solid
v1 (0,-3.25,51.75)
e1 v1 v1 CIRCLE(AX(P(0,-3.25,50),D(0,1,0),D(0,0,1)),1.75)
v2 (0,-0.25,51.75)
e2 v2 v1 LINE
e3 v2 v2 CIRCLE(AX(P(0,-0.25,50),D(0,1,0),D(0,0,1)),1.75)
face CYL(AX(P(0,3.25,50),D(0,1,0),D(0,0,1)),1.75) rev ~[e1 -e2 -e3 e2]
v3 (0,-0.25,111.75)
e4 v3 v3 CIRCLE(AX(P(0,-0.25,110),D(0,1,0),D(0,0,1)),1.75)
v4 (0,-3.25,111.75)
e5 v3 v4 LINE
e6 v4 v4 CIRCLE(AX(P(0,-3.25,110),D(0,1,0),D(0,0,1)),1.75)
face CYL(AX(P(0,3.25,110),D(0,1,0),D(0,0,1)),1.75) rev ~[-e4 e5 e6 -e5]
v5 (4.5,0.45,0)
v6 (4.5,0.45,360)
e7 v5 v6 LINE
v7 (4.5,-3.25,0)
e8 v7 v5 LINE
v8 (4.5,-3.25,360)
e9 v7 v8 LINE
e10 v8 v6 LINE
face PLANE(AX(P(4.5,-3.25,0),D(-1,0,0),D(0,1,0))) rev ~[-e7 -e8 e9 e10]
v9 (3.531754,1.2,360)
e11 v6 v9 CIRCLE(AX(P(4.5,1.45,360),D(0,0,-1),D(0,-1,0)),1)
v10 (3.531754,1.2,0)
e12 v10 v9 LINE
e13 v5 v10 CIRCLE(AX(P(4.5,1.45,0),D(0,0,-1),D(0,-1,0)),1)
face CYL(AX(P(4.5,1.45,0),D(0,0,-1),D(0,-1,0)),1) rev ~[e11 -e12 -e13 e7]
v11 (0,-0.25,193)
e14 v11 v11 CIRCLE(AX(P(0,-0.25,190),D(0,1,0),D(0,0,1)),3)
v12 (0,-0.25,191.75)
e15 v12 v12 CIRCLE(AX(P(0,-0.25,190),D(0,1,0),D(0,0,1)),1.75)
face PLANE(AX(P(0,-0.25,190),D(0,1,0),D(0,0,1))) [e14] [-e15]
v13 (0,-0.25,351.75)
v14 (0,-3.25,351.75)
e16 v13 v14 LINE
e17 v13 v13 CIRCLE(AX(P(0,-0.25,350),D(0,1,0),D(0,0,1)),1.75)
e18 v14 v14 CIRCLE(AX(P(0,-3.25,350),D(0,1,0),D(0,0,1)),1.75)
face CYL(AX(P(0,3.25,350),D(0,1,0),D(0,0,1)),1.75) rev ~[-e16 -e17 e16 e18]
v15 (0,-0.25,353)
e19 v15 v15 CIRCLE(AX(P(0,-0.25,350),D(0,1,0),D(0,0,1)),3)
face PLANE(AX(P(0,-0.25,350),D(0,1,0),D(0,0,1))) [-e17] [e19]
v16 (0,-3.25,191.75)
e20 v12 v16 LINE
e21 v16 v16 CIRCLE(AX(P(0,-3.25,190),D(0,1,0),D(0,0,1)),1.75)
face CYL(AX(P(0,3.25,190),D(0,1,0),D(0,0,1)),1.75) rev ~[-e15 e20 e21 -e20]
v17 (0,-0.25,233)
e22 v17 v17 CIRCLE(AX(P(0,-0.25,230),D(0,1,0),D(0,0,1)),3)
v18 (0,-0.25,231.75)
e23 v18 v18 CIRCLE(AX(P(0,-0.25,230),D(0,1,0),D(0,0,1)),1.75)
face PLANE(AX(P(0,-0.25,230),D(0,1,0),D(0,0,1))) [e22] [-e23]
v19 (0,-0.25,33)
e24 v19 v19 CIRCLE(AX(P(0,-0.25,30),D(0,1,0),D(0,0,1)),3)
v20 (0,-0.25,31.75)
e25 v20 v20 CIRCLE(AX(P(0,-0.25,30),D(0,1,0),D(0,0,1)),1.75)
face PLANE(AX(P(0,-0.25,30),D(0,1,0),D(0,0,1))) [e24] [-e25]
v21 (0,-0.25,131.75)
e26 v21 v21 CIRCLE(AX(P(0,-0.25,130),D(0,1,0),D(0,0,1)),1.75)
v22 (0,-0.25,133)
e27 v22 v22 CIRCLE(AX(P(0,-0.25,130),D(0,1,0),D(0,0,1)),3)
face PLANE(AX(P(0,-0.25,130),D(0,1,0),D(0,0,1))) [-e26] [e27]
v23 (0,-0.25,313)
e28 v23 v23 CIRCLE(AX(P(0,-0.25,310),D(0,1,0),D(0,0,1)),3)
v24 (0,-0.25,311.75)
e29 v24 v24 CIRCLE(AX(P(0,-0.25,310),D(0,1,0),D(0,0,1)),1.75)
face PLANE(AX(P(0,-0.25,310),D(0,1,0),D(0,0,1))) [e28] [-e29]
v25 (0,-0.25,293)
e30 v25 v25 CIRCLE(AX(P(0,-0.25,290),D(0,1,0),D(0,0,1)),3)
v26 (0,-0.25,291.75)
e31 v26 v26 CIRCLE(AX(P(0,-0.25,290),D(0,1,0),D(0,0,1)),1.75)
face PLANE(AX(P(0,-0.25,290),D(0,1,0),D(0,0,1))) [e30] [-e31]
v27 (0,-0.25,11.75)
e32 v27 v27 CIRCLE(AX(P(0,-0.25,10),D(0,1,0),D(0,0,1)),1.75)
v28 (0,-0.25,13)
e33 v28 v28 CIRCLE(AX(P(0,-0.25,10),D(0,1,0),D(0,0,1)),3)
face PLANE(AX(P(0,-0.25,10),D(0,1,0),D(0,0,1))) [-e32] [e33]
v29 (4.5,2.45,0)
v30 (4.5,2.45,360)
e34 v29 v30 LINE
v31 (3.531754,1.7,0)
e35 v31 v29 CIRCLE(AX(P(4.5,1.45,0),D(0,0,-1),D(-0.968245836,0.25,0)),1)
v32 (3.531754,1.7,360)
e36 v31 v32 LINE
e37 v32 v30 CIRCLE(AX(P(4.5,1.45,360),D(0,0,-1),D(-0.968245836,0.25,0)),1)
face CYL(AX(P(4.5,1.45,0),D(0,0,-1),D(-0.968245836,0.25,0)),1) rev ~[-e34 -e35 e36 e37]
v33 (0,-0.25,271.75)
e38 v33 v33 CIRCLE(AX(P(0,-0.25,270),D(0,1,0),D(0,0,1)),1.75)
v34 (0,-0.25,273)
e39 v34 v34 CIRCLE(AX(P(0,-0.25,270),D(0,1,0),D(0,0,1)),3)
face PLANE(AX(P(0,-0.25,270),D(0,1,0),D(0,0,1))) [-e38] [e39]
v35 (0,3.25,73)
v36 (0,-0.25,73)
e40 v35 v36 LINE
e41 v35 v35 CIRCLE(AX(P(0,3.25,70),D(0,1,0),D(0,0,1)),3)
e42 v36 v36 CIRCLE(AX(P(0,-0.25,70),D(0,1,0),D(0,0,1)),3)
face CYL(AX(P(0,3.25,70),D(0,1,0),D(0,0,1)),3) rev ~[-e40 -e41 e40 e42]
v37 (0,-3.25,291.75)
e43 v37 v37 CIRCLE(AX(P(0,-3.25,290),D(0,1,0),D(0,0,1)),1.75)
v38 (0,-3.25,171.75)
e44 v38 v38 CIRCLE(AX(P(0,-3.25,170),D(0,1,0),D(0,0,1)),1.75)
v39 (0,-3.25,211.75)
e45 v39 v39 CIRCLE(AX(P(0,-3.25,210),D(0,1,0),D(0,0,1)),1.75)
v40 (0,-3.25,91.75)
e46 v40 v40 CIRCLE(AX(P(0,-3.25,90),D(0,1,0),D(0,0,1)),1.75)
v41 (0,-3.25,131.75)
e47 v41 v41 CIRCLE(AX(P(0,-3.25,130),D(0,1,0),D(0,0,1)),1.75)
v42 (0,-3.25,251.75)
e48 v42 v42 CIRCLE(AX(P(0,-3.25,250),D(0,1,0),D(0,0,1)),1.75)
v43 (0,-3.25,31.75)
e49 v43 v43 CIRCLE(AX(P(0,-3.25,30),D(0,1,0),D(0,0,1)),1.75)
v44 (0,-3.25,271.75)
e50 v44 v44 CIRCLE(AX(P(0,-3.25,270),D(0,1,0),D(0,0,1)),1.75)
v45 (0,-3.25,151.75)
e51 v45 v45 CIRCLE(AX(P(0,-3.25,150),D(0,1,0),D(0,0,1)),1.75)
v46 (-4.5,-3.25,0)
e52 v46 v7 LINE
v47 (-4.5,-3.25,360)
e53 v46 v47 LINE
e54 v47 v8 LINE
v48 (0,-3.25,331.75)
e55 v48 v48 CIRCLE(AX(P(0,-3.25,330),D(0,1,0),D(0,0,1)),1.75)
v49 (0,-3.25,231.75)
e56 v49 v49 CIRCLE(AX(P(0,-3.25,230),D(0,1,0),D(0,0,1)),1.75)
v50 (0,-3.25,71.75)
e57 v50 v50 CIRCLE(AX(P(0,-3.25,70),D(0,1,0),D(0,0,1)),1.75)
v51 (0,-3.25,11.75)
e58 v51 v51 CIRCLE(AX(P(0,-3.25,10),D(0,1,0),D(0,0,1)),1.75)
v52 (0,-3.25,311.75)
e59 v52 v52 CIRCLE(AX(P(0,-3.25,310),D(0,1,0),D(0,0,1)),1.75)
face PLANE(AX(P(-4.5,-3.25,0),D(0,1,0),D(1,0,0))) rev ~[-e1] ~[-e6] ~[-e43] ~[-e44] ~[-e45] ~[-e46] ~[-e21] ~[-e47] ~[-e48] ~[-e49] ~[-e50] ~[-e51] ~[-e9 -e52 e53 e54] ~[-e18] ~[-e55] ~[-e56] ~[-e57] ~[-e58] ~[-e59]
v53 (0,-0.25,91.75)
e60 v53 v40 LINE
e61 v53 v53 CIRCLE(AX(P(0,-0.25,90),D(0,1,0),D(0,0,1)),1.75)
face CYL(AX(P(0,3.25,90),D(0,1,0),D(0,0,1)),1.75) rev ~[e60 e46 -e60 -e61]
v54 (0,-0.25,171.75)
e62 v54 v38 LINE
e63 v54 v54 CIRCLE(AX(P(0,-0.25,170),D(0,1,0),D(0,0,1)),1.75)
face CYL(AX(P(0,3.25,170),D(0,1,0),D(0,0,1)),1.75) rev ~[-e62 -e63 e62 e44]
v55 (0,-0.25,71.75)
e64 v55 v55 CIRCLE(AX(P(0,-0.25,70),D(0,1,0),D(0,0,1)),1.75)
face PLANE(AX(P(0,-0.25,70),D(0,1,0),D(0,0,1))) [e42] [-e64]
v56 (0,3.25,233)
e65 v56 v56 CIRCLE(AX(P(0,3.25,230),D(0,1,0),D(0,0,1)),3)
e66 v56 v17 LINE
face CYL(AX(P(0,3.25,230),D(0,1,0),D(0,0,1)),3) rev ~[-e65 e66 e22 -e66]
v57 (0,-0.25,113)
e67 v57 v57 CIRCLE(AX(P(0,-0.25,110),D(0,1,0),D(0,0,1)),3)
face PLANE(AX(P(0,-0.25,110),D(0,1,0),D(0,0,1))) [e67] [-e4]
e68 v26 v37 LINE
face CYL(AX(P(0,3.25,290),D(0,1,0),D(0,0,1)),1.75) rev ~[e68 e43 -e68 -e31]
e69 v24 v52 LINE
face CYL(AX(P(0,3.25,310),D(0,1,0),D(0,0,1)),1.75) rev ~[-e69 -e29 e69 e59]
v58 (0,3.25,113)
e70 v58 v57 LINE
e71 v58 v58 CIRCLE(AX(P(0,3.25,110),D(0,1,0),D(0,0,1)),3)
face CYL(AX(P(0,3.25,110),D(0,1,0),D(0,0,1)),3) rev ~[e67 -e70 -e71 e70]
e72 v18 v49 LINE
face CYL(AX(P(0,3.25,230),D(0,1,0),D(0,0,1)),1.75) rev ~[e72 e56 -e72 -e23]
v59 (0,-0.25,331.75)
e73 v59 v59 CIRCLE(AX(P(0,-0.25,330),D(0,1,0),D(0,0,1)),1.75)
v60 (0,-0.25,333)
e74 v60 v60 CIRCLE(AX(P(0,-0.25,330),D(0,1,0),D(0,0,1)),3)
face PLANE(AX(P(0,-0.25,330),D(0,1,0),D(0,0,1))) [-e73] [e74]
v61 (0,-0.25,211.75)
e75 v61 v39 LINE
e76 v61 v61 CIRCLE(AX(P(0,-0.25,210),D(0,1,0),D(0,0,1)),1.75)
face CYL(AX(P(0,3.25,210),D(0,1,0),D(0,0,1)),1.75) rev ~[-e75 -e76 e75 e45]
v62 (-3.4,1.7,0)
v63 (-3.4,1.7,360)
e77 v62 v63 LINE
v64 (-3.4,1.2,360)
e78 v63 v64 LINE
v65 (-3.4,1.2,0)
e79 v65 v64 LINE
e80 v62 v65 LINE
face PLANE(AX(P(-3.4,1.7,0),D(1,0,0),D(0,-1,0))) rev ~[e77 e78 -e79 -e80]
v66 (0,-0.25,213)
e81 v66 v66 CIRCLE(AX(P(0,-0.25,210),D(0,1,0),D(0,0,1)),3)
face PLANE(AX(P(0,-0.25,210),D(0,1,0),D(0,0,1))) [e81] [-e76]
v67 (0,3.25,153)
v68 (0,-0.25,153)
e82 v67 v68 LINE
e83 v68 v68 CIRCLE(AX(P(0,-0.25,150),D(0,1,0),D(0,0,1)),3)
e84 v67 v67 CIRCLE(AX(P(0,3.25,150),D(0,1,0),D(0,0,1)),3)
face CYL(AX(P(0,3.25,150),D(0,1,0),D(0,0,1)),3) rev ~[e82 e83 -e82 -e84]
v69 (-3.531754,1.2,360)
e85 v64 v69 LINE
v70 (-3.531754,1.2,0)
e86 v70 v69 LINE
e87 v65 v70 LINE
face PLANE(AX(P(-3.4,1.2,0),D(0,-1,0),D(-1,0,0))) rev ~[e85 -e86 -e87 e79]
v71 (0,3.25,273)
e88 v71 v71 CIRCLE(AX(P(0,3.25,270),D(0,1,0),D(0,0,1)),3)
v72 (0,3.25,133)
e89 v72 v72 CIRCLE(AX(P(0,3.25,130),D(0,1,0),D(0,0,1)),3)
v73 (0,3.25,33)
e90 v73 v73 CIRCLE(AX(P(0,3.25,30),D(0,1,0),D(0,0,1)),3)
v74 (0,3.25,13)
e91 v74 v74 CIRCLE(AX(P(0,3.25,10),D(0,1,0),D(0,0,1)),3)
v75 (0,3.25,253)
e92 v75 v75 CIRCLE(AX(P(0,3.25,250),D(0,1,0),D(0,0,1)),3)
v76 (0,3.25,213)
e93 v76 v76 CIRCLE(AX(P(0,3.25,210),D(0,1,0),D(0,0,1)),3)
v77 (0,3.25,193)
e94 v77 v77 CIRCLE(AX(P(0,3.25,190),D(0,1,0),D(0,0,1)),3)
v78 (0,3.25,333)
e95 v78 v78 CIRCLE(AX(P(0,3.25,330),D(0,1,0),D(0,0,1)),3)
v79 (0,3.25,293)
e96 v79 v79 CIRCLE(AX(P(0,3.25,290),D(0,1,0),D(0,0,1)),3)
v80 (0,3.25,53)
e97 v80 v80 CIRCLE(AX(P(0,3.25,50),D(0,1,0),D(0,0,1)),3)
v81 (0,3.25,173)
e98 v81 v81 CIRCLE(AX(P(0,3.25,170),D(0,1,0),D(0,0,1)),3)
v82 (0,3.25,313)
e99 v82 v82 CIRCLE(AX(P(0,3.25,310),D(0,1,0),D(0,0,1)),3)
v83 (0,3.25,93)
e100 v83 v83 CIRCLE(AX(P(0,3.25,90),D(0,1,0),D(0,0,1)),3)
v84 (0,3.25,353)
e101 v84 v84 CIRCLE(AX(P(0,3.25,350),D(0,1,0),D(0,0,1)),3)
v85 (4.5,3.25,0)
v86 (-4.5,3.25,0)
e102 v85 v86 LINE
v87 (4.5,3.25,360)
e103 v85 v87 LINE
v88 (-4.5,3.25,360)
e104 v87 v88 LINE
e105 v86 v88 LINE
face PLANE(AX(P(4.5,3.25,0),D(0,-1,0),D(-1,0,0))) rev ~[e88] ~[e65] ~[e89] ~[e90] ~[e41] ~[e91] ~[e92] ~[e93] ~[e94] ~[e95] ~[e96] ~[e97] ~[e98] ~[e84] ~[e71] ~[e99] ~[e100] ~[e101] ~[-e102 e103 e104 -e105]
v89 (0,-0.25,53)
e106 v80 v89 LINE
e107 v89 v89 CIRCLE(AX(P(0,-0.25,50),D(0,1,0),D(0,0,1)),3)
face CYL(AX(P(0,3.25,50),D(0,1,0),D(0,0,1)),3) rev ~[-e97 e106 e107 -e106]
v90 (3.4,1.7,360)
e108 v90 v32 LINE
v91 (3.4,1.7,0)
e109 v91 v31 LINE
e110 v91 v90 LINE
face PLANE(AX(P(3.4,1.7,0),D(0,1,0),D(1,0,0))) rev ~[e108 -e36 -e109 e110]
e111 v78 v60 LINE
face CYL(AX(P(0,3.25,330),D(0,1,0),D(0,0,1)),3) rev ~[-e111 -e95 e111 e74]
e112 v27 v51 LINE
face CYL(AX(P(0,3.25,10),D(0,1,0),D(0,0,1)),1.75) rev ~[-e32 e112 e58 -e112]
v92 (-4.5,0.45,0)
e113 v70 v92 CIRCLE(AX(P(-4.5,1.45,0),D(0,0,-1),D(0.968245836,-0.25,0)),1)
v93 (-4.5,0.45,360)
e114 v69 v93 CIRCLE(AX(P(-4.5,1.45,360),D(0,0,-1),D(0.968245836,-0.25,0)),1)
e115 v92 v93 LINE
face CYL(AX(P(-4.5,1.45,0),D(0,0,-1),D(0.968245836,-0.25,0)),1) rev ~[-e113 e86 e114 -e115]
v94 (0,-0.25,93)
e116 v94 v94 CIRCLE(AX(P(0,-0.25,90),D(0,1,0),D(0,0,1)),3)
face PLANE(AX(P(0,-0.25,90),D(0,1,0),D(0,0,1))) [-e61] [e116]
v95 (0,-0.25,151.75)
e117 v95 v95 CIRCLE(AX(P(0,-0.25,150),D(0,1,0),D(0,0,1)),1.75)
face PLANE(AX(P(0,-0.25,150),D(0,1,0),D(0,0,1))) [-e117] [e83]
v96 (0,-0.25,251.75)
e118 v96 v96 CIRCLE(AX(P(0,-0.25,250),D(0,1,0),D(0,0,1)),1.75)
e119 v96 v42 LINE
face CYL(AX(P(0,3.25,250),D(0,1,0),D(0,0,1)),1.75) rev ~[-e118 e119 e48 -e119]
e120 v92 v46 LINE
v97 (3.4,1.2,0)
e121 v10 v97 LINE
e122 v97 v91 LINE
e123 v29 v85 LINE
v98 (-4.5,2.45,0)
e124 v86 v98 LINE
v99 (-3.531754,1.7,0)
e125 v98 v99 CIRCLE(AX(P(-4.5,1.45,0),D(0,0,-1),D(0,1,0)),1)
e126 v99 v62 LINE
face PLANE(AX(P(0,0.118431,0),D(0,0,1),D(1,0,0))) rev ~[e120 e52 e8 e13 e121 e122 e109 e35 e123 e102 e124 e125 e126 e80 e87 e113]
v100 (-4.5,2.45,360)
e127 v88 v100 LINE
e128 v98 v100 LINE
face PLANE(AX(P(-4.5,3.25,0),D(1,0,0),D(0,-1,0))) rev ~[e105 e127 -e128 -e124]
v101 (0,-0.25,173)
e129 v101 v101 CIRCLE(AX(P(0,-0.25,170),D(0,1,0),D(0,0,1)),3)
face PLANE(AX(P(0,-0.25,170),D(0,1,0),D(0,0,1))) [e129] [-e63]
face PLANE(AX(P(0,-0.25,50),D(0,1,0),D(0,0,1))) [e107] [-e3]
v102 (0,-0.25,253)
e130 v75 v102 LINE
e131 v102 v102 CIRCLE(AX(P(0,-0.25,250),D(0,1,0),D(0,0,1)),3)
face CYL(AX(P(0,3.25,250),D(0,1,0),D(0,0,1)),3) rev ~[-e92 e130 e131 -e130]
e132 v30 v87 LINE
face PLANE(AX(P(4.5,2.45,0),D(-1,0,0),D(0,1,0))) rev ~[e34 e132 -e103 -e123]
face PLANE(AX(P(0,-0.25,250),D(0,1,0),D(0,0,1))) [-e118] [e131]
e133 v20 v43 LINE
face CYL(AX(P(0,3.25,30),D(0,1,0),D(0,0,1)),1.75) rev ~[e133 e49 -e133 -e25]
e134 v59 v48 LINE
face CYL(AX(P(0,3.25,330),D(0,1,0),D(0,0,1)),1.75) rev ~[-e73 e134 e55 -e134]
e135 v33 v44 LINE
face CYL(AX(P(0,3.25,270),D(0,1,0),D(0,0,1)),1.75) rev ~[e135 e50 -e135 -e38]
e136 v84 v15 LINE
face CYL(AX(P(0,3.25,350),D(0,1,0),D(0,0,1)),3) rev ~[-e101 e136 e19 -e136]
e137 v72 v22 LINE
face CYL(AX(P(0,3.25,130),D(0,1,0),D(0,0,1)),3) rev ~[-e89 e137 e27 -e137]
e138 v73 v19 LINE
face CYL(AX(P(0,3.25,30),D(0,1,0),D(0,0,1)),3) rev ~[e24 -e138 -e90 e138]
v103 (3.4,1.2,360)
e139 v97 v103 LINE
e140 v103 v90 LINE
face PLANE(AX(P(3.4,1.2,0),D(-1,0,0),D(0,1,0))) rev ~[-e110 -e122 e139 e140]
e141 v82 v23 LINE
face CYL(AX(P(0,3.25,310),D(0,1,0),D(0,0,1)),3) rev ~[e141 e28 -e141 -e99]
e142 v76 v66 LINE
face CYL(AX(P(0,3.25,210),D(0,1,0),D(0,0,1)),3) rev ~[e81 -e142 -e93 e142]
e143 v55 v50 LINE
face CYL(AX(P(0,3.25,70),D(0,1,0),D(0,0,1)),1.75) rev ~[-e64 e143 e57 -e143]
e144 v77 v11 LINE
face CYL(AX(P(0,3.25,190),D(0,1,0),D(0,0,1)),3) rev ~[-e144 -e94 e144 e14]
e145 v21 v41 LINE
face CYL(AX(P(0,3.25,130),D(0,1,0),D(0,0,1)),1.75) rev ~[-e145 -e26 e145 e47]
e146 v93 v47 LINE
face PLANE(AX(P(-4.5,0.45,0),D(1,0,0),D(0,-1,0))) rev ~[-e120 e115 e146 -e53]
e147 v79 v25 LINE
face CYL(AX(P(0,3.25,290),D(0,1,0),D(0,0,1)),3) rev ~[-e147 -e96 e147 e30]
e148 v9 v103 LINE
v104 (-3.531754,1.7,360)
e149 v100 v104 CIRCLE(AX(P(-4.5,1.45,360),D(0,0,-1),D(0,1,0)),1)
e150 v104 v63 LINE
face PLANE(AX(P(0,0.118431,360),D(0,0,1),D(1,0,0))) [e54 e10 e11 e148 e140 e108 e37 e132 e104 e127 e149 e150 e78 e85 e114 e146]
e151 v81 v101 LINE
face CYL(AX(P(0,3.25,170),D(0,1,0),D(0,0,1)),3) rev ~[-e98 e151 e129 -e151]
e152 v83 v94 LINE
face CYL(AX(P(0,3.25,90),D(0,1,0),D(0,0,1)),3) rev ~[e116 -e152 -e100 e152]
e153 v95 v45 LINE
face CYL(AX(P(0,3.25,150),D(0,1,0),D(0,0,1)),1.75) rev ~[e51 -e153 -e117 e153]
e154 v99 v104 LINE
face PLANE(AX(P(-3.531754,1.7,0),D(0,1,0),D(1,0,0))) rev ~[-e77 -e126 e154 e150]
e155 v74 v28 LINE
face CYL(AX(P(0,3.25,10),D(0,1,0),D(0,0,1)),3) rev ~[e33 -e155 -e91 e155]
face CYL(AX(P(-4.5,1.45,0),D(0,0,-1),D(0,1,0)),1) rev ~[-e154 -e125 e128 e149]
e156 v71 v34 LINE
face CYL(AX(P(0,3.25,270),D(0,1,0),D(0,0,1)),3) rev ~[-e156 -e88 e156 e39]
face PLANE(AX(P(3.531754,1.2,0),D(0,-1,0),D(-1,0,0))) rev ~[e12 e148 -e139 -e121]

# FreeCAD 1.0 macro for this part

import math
import FreeCAD as App
import Part
import Sketcher
Q = App.Units.Quantity

doc = App.newDocument("Part")
body = doc.addObject("PartDesign::Body", "Body")

sketch1 = body.newObject("Sketcher::SketchObject", "Sketch")
sketch1.AttachmentSupport = (doc.getObject("XY_Plane"), [""])
sketch1.MapMode = "FlatFace"
sketch1.addGeometry([
    Part.LineSegment(App.Vector(-4.5, -3.25, 0), App.Vector(4.5, -3.25, 0)),
    Part.LineSegment(App.Vector(4.5, -3.25, 0), App.Vector(4.5, 0.45, 0)),
    Part.ArcOfCircle(Part.Circle(App.Vector(4.5, 1.45, 0), App.Vector(0, 0, 1), 1), math.radians(-166), math.radians(-90)),
    Part.LineSegment(App.Vector(3.53, 1.2, 0), App.Vector(3.4, 1.2, 0)),
    Part.LineSegment(App.Vector(3.4, 1.2, 0), App.Vector(3.4, 1.7, 0)),
    Part.LineSegment(App.Vector(3.4, 1.7, 0), App.Vector(3.53, 1.7, 0)),
    Part.ArcOfCircle(Part.Circle(App.Vector(4.5, 1.45, 0), App.Vector(0, 0, 1), 1), math.radians(90), math.radians(166)),
    Part.LineSegment(App.Vector(4.5, 2.45, 0), App.Vector(4.5, 3.25, 0)),
    Part.LineSegment(App.Vector(4.5, 3.25, 0), App.Vector(-4.5, 3.25, 0)),
    Part.LineSegment(App.Vector(-4.5, 3.25, 0), App.Vector(-4.5, 2.45, 0)),
    Part.ArcOfCircle(Part.Circle(App.Vector(-4.5, 1.45, 0), App.Vector(0, 0, 1), 1), math.radians(14), math.radians(90)),
    Part.LineSegment(App.Vector(-3.53, 1.7, 0), App.Vector(-3.4, 1.7, 0)),
    Part.LineSegment(App.Vector(-3.4, 1.7, 0), App.Vector(-3.4, 1.2, 0)),
    Part.LineSegment(App.Vector(-3.4, 1.2, 0), App.Vector(-3.53, 1.2, 0)),
    Part.ArcOfCircle(Part.Circle(App.Vector(-4.5, 1.45, 0), App.Vector(0, 0, 1), 1), math.radians(-90), math.radians(-14)),
    Part.LineSegment(App.Vector(-4.5, 0.45, 0), App.Vector(-4.5, -3.25, 0)),
], False)
sketch1.addConstraint([
    Sketcher.Constraint("Coincident", 0, 2, 1, 1),
    Sketcher.Constraint("Coincident", 1, 2, 2, 2),
    Sketcher.Constraint("Coincident", 2, 1, 3, 1),
    Sketcher.Constraint("Coincident", 3, 2, 4, 1),
    Sketcher.Constraint("Coincident", 4, 2, 5, 1),
    Sketcher.Constraint("Coincident", 5, 2, 6, 2),
    Sketcher.Constraint("Coincident", 6, 1, 7, 1),
    Sketcher.Constraint("Coincident", 7, 2, 8, 1),
    Sketcher.Constraint("Coincident", 8, 2, 9, 1),
    Sketcher.Constraint("Coincident", 9, 2, 10, 2),
    Sketcher.Constraint("Coincident", 10, 1, 11, 1),
    Sketcher.Constraint("Coincident", 11, 2, 12, 1),
    Sketcher.Constraint("Coincident", 12, 2, 13, 1),
    Sketcher.Constraint("Coincident", 13, 2, 14, 2),
    Sketcher.Constraint("Coincident", 14, 1, 15, 1),
    Sketcher.Constraint("Coincident", 15, 2, 0, 1),
    Sketcher.Constraint("Horizontal", 0),
    Sketcher.Constraint("Vertical", 1),
    Sketcher.Constraint("Horizontal", 3),
    Sketcher.Constraint("Vertical", 4),
    Sketcher.Constraint("Horizontal", 5),
    Sketcher.Constraint("Vertical", 7),
    Sketcher.Constraint("Horizontal", 8),
    Sketcher.Constraint("Vertical", 9),
    Sketcher.Constraint("Horizontal", 11),
    Sketcher.Constraint("Vertical", 12),
    Sketcher.Constraint("Horizontal", 13),
    Sketcher.Constraint("Vertical", 15),
    Sketcher.Constraint("Coincident", 6, 3, 2, 3),
    Sketcher.Constraint("Coincident", 14, 3, 10, 3),
    Sketcher.Constraint("Equal", 2, 6),
    Sketcher.Constraint("Equal", 6, 10),
    Sketcher.Constraint("Equal", 10, 14),
    Sketcher.Constraint("Symmetric", 0, 2, 8, 2, -1, 1),
    Sketcher.Constraint("Symmetric", 2, 3, 10, 3, -2),
    Sketcher.Constraint("Symmetric", 4, 2, 11, 2, -2),
    Sketcher.Constraint("Horizontal", 3, 2, 12, 2),
    Sketcher.Constraint("Vertical", 6, 3, 0, 2),
    Sketcher.Constraint("Vertical", 2, 1, 5, 2),
    Sketcher.Constraint("Vertical", 1, 2, 6, 1),
    Sketcher.Constraint("Vertical", 9, 2, 14, 1),
    Sketcher.Constraint("Radius", 2, Q("1 mm")),
    Sketcher.Constraint("DistanceX", 0, 1, 0, 2, Q("9 mm")),
    Sketcher.Constraint("DistanceY", 1, 1, 1, 2, Q("3.7 mm")),
    Sketcher.Constraint("DistanceY", 4, 1, 4, 2, Q("0.5 mm")),
    Sketcher.Constraint("DistanceY", 7, 1, 7, 2, Q("0.8 mm")),
    Sketcher.Constraint("DistanceX", -1, 1, 3, 2, Q("3.4 mm")),
])
pad1 = body.newObject("PartDesign::Pad", "Pad")
pad1.Profile = sketch1
pad1.Length = 360

sketch2 = body.newObject("Sketcher::SketchObject", "Sketch001")
sketch2.AttachmentSupport = (doc.getObject("XZ_Plane"), [""])
sketch2.MapMode = "FlatFace"
sketch2.AttachmentOffset = App.Placement(App.Vector(0, 0, -3.25), App.Rotation())
sketch2.addGeometry(Part.Circle(App.Vector(0, 10, 0), App.Vector(0, 0, 1), 3), False)
sketch2.addConstraint([
    Sketcher.Constraint("PointOnObject", 0, 3, -2),
    Sketcher.Constraint("Diameter", 0, Q("6 mm")),
    Sketcher.Constraint("DistanceY", -1, 1, 0, 3, Q("10 mm")),
])
pocket1 = body.newObject("PartDesign::Pocket", "Pocket")
pocket1.Profile = sketch2
pocket1.Length = 3.5
pocket1.Reversed = True

sketch3 = body.newObject("Sketcher::SketchObject", "Sketch002")
sketch3.AttachmentSupport = (doc.getObject("XZ_Plane"), [""])
sketch3.MapMode = "FlatFace"
sketch3.AttachmentOffset = App.Placement(App.Vector(0, 0, -3.25), App.Rotation())
sketch3.addGeometry(Part.Circle(App.Vector(0, 10, 0), App.Vector(0, 0, 1), 1.8), False)
sketch3.addConstraint([
    Sketcher.Constraint("PointOnObject", 0, 3, -2),
    Sketcher.Constraint("Diameter", 0, Q("3.5 mm")),
    Sketcher.Constraint("DistanceY", -1, 1, 0, 3, Q("10 mm")),
])
pocket2 = body.newObject("PartDesign::Pocket", "Pocket001")
pocket2.Profile = sketch3
pocket2.Type = "ThroughAll"
pocket2.Reversed = True
doc.recompute()

linearpattern = body.newObject("PartDesign::LinearPattern", "LinearPattern")
linearpattern.Originals = [pocket1, pocket2]
linearpattern.Direction = (doc.getObject("Z_Axis"), [""])
linearpattern.Mode = "offset"
linearpattern.Offset = 20
linearpattern.Occurrences = 40
body.Tip = linearpattern

doc.recompute()
